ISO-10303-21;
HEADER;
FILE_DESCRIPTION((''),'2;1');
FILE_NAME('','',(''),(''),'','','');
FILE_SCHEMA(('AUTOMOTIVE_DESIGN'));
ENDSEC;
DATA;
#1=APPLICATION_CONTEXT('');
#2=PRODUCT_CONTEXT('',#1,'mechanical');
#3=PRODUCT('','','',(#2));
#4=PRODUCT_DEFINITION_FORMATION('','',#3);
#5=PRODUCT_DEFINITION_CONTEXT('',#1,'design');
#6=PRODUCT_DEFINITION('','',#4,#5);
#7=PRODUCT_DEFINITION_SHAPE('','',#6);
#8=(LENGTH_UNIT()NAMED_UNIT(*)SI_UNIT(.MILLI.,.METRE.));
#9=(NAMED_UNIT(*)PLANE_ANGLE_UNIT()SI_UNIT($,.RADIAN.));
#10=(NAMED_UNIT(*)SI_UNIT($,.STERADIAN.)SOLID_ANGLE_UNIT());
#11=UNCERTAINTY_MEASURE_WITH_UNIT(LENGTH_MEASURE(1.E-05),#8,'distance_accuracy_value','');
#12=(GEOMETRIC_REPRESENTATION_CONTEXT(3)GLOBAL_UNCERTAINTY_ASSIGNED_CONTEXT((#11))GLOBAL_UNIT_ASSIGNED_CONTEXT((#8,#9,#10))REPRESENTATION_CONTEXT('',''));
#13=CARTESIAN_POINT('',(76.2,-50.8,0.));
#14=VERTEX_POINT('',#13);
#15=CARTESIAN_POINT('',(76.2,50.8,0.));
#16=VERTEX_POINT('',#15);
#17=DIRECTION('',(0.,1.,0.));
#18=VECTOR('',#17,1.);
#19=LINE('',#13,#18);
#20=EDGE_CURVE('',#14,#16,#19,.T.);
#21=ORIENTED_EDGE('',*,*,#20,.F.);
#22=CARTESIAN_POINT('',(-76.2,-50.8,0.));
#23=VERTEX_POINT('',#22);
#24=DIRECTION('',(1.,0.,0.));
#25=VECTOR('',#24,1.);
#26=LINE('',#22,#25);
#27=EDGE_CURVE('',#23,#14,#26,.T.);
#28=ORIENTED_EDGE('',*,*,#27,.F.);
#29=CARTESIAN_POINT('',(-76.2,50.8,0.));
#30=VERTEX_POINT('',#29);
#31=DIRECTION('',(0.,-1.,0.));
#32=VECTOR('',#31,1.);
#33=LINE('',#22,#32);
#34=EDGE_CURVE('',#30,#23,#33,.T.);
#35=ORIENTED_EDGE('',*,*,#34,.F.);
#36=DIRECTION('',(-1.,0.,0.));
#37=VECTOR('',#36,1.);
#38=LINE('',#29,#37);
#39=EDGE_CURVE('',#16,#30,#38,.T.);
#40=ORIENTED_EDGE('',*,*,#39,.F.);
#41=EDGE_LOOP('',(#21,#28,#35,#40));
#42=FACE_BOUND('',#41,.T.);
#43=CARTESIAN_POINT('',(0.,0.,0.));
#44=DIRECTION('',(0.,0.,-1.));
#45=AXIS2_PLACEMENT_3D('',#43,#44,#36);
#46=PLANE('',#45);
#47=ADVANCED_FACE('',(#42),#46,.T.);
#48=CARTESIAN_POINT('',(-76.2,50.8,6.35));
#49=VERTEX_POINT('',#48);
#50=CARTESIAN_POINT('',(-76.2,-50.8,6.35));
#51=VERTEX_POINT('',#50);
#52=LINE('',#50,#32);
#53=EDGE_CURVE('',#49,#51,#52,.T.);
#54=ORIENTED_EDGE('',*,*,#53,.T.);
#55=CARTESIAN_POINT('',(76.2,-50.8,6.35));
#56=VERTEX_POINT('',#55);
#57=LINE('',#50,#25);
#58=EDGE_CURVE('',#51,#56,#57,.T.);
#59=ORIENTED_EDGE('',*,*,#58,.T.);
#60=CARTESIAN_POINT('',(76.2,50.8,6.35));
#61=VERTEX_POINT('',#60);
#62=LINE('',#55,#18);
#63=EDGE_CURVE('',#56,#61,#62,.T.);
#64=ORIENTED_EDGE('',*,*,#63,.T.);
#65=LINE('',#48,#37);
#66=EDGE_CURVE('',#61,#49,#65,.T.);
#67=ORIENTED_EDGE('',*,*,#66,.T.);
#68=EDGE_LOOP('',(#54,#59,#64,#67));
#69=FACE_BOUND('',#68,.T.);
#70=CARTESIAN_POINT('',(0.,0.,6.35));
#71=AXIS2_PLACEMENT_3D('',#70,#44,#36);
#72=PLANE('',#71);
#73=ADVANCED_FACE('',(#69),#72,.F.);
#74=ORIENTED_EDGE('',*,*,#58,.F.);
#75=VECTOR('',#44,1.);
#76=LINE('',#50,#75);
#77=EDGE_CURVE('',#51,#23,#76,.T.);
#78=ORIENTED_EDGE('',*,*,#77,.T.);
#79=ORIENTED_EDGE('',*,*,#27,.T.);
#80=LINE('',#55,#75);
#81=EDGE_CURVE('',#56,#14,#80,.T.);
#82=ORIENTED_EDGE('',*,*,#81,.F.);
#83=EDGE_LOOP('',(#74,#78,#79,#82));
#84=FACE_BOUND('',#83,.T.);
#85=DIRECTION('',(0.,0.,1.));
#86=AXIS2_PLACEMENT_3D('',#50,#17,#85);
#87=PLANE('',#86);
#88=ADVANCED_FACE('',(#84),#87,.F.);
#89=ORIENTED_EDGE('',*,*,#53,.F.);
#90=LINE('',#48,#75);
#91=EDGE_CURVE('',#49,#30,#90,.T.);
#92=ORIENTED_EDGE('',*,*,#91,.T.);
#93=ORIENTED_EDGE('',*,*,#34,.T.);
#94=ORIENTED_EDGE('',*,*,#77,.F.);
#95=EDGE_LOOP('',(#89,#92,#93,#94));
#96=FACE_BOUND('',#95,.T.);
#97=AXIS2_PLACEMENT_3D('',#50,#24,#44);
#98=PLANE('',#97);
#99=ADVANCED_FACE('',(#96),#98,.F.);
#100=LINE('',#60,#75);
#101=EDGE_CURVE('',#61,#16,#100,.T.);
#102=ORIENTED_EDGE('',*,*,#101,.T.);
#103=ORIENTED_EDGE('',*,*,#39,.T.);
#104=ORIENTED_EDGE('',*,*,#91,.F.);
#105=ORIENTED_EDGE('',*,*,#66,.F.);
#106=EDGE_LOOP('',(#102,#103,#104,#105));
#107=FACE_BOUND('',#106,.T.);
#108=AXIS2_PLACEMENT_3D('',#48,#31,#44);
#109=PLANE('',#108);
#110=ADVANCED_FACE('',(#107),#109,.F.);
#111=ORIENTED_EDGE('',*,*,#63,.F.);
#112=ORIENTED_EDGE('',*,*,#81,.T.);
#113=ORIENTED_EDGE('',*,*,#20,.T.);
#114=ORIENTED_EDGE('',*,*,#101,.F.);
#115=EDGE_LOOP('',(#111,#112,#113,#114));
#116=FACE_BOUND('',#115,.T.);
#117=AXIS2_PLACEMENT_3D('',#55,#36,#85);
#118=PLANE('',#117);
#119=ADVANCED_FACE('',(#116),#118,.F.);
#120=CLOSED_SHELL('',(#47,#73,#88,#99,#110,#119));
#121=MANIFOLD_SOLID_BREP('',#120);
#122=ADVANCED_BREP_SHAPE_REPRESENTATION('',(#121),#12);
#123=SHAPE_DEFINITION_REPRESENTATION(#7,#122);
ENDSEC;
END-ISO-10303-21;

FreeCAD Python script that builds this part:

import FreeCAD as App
import Part
import Sketcher

V = App.Vector
Q = App.Units.Quantity

doc = App.newDocument("Part")
body = doc.addObject("PartDesign::Body", "Body")

sketch1 = body.newObject("Sketcher::SketchObject", "Sketch")
sketch1.AttachmentSupport = (doc.getObject("XY_Plane"), [""])
sketch1.MapMode = "FlatFace"
sketch1.addGeometry([
    Part.LineSegment(V(-76, 51, 0), V(-76, -51, 0)),
    Part.LineSegment(V(-76, -51, 0), V(76, -51, 0)),
    Part.LineSegment(V(76, -51, 0), V(76, 51, 0)),
    Part.LineSegment(V(76, 51, 0), V(-76, 51, 0)),
], False)
sketch1.addConstraint([
    Sketcher.Constraint("Coincident", 0, 2, 1, 1),
    Sketcher.Constraint("Coincident", 1, 2, 2, 1),
    Sketcher.Constraint("Coincident", 2, 2, 3, 1),
    Sketcher.Constraint("Coincident", 3, 2, 0, 1),
    Sketcher.Constraint("Vertical", 0),
    Sketcher.Constraint("Horizontal", 1),
    Sketcher.Constraint("Vertical", 2),
    Sketcher.Constraint("Horizontal", 3),
    Sketcher.Constraint("Symmetric", 0, 2, 2, 2, -1, 1),
    Sketcher.Constraint("DistanceX", 1, 1, 1, 2, Q("6 in")),
    Sketcher.Constraint("DistanceY", 0, 2, 0, 1, Q("4 in")),
])
pad1 = body.newObject("PartDesign::Pad", "Pad")
pad1.Profile = sketch1
pad1.Length = Q("0.25 in")

doc.recompute()
